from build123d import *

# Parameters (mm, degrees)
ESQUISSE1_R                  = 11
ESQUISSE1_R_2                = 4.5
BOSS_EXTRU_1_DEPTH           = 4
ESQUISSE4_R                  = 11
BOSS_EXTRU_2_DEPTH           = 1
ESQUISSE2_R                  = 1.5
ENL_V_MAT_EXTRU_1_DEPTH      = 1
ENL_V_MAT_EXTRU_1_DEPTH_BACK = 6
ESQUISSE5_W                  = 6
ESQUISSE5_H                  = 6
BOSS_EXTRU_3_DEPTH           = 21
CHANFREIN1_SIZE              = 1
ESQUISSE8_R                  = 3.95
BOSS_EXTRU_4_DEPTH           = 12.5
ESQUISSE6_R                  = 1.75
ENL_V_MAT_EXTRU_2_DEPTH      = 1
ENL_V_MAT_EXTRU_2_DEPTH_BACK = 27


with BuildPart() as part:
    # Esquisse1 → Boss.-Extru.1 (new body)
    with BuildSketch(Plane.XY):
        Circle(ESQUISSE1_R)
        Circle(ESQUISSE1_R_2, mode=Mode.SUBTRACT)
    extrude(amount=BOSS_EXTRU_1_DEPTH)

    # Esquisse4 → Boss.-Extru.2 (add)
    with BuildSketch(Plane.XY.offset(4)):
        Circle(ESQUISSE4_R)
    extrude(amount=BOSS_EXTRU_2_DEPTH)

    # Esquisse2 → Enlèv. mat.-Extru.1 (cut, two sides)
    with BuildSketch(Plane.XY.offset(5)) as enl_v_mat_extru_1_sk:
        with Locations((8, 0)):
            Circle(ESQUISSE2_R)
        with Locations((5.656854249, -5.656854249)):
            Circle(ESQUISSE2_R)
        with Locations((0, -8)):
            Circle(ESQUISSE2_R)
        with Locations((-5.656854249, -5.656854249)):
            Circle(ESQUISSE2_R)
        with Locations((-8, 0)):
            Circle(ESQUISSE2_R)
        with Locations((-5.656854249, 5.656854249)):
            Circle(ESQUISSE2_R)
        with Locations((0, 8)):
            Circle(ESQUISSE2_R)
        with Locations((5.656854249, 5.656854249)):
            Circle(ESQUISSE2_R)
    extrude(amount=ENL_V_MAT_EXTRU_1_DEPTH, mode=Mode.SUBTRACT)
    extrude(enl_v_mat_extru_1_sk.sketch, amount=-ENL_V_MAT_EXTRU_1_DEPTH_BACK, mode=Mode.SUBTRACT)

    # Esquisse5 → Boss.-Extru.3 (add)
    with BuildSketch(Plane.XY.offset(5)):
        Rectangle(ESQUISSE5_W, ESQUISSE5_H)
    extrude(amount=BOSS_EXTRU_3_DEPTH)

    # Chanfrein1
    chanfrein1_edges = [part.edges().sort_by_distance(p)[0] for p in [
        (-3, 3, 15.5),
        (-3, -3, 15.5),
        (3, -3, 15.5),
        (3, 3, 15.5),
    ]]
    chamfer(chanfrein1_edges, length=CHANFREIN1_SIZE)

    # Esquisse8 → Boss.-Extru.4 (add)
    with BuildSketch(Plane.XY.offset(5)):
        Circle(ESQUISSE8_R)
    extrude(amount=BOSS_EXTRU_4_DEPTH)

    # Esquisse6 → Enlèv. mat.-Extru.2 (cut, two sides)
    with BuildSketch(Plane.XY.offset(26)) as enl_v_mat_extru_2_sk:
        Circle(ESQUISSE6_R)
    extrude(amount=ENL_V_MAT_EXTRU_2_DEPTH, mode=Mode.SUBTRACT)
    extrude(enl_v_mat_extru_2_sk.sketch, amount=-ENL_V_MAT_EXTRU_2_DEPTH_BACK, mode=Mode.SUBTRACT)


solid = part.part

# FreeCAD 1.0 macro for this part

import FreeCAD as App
import Part
import Sketcher

V = App.Vector
Q = App.Units.Quantity


def edges_at(feature, points):
    """Names of the edges that pass closest to the given points."""
    edges = feature.Shape.Edges
    near = lambda p: min(range(len(edges)), key=lambda i: edges[i].distToShape(Part.Vertex(*p))[0])
    return sorted({f"Edge{near(p) + 1}" for p in points})


def add_polygon(sketch, points):
    """Adds a closed chain of lines whose ends are joined by coincident constraints."""
    first, n = sketch.GeometryCount, len(points)
    for a, b in zip(points, points[1:] + points[:1]):
        sketch.addGeometry(Part.LineSegment(App.Vector(*a, 0), App.Vector(*b, 0)), False)
    for i in range(n):
        sketch.addConstraint(Sketcher.Constraint("Coincident", first + i, 2, first + (i + 1) % n, 1))

doc = App.newDocument("Part")
body = doc.addObject("PartDesign::Body", "Body")

# Sketch on XY plane
sketch1 = doc.addObject("Sketcher::SketchObject", "Sketch")
body.addObject(sketch1)
sketch1.AttachmentSupport = (doc.XY_Plane, [""])
sketch1.MapMode = "FlatFace"
sketch1.addGeometry(Part.Circle(V(0, 0, 0), V(0, 0, 1), 11), False)
sketch1.addGeometry(Part.Circle(V(0, 0, 0), V(0, 0, 1), 4.5), False)
sketch1.addConstraint(Sketcher.Constraint("Coincident", 0, 3, -1, 1))
sketch1.addConstraint(Sketcher.Constraint("Coincident", 1, 3, -1, 1))
sketch1.addConstraint(Sketcher.Constraint("Diameter", 0, Q("22 mm")))
sketch1.addConstraint(Sketcher.Constraint("Diameter", 1, Q("9 mm")))
pad1 = doc.addObject("PartDesign::Pad", "Pad")
body.addObject(pad1)
pad1.Profile = sketch1
pad1.Length = 4

# Sketch on XY plane
sketch2 = doc.addObject("Sketcher::SketchObject", "Sketch001")
body.addObject(sketch2)
sketch2.AttachmentSupport = (doc.XY_Plane, [""])
sketch2.MapMode = "FlatFace"
sketch2.AttachmentOffset = App.Placement(V(0, 0, 4), App.Rotation())
sketch2.addGeometry(Part.Circle(V(0, 0, 0), V(0, 0, 1), 11), False)
sketch2.addConstraint(Sketcher.Constraint("Coincident", 0, 3, -1, 1))
sketch2.addConstraint(Sketcher.Constraint("Diameter", 0, Q("22 mm")))
pad2 = doc.addObject("PartDesign::Pad", "Pad001")
body.addObject(pad2)
pad2.Profile = sketch2
pad2.Length = 1

# Sketch on XY plane
sketch3 = doc.addObject("Sketcher::SketchObject", "Sketch002")
body.addObject(sketch3)
sketch3.AttachmentSupport = (doc.XY_Plane, [""])
sketch3.MapMode = "FlatFace"
sketch3.AttachmentOffset = App.Placement(V(0, 0, 5), App.Rotation())
sketch3.addGeometry(Part.Circle(V(8, 0, 0), V(0, 0, 1), 1.5), False)
sketch3.addGeometry(Part.Circle(V(5.7, -5.7, 0), V(0, 0, 1), 1.5), False)
sketch3.addGeometry(Part.Circle(V(0, -8, 0), V(0, 0, 1), 1.5), False)
sketch3.addGeometry(Part.Circle(V(-5.7, -5.7, 0), V(0, 0, 1), 1.5), False)
sketch3.addGeometry(Part.Circle(V(-8, 0, 0), V(0, 0, 1), 1.5), False)
sketch3.addGeometry(Part.Circle(V(-5.7, 5.7, 0), V(0, 0, 1), 1.5), False)
sketch3.addGeometry(Part.Circle(V(0, 8, 0), V(0, 0, 1), 1.5), False)
sketch3.addGeometry(Part.Circle(V(5.7, 5.7, 0), V(0, 0, 1), 1.5), False)
sketch3.addConstraint(Sketcher.Constraint("Equal", 0, 1))
sketch3.addConstraint(Sketcher.Constraint("Equal", 1, 2))
sketch3.addConstraint(Sketcher.Constraint("Equal", 2, 3))
sketch3.addConstraint(Sketcher.Constraint("Equal", 3, 4))
sketch3.addConstraint(Sketcher.Constraint("Equal", 4, 5))
sketch3.addConstraint(Sketcher.Constraint("Equal", 5, 6))
sketch3.addConstraint(Sketcher.Constraint("Equal", 6, 7))
sketch3.addConstraint(Sketcher.Constraint("Symmetric", 0, 3, 4, 3, -1, 1))
sketch3.addConstraint(Sketcher.Constraint("Symmetric", 1, 3, 5, 3, -1, 1))
sketch3.addConstraint(Sketcher.Constraint("Symmetric", 2, 3, 6, 3, -1, 1))
sketch3.addConstraint(Sketcher.Constraint("Symmetric", 3, 3, 7, 3, -1, 1))
sketch3.addConstraint(Sketcher.Constraint("Symmetric", 1, 3, 3, 3, -2))
sketch3.addConstraint(Sketcher.Constraint("PointOnObject", 0, 3, -1))
sketch3.addConstraint(Sketcher.Constraint("PointOnObject", 2, 3, -2))
sketch3.addConstraint(Sketcher.Constraint("Diameter", 0, Q("3 mm")))
sketch3.addConstraint(Sketcher.Constraint("DistanceX", -1, 1, 0, 3, Q("8 mm")))
sketch3.addConstraint(Sketcher.Constraint("DistanceY", 2, 3, -1, 1, Q("8 mm")))
sketch3.addConstraint(Sketcher.Constraint("DistanceX", 3, 3, 1, 3, Q("11.313708 mm")))
sketch3.addConstraint(Sketcher.Constraint("DistanceY", 3, 3, 5, 3, Q("11.313708 mm")))
pocket1 = doc.addObject("PartDesign::Pocket", "Pocket")
body.addObject(pocket1)
pocket1.Profile = sketch3
pocket1.Type = "ThroughAll"
pocket1.Midplane = True

# Sketch on XY plane
sketch4 = doc.addObject("Sketcher::SketchObject", "Sketch003")
body.addObject(sketch4)
sketch4.AttachmentSupport = (doc.XY_Plane, [""])
sketch4.MapMode = "FlatFace"
sketch4.AttachmentOffset = App.Placement(V(0, 0, 5), App.Rotation())
add_polygon(sketch4, [(-3, 3), (-3, -3), (3, -3), (3, 3)])  # lines 0-3
sketch4.addConstraint(Sketcher.Constraint("Vertical", 0))
sketch4.addConstraint(Sketcher.Constraint("Horizontal", 1))
sketch4.addConstraint(Sketcher.Constraint("Vertical", 2))
sketch4.addConstraint(Sketcher.Constraint("Horizontal", 3))
sketch4.addConstraint(Sketcher.Constraint("Symmetric", 0, 2, 2, 2, -1, 1))
sketch4.addConstraint(Sketcher.Constraint("Equal", 3, 0))
sketch4.addConstraint(Sketcher.Constraint("DistanceX", 1, 1, 1, 2, Q("6 mm")))
pad3 = doc.addObject("PartDesign::Pad", "Pad002")
body.addObject(pad3)
pad3.Profile = sketch4
pad3.Length = 21
doc.recompute()

chamfer = doc.addObject("PartDesign::Chamfer", "Chamfer")
body.addObject(chamfer)
chamfer.Base = (pad3, edges_at(pad3, [
    (-3, 3, 15.5),
    (-3, -3, 15.5),
    (3, -3, 15.5),
    (3, 3, 15.5),
]))
chamfer.Size = 1

# Sketch on XY plane
sketch5 = doc.addObject("Sketcher::SketchObject", "Sketch004")
body.addObject(sketch5)
sketch5.AttachmentSupport = (doc.XY_Plane, [""])
sketch5.MapMode = "FlatFace"
sketch5.AttachmentOffset = App.Placement(V(0, 0, 5), App.Rotation())
sketch5.addGeometry(Part.Circle(V(0, 0, 0), V(0, 0, 1), 4), False)
sketch5.addConstraint(Sketcher.Constraint("Coincident", 0, 3, -1, 1))
sketch5.addConstraint(Sketcher.Constraint("Diameter", 0, Q("7.9 mm")))
pad4 = doc.addObject("PartDesign::Pad", "Pad003")
body.addObject(pad4)
pad4.Profile = sketch5
pad4.Length = 12.5

# Sketch on XY plane
sketch6 = doc.addObject("Sketcher::SketchObject", "Sketch005")
body.addObject(sketch6)
sketch6.AttachmentSupport = (doc.XY_Plane, [""])
sketch6.MapMode = "FlatFace"
sketch6.AttachmentOffset = App.Placement(V(0, 0, 26), App.Rotation())
sketch6.addGeometry(Part.Circle(V(0, 0, 0), V(0, 0, 1), 1.8), False)
sketch6.addConstraint(Sketcher.Constraint("Coincident", 0, 3, -1, 1))
sketch6.addConstraint(Sketcher.Constraint("Diameter", 0, Q("3.5 mm")))
pocket2 = doc.addObject("PartDesign::Pocket", "Pocket001")
body.addObject(pocket2)
pocket2.Profile = sketch6
pocket2.Type = "ThroughAll"
pocket2.Midplane = True

doc.recompute()
